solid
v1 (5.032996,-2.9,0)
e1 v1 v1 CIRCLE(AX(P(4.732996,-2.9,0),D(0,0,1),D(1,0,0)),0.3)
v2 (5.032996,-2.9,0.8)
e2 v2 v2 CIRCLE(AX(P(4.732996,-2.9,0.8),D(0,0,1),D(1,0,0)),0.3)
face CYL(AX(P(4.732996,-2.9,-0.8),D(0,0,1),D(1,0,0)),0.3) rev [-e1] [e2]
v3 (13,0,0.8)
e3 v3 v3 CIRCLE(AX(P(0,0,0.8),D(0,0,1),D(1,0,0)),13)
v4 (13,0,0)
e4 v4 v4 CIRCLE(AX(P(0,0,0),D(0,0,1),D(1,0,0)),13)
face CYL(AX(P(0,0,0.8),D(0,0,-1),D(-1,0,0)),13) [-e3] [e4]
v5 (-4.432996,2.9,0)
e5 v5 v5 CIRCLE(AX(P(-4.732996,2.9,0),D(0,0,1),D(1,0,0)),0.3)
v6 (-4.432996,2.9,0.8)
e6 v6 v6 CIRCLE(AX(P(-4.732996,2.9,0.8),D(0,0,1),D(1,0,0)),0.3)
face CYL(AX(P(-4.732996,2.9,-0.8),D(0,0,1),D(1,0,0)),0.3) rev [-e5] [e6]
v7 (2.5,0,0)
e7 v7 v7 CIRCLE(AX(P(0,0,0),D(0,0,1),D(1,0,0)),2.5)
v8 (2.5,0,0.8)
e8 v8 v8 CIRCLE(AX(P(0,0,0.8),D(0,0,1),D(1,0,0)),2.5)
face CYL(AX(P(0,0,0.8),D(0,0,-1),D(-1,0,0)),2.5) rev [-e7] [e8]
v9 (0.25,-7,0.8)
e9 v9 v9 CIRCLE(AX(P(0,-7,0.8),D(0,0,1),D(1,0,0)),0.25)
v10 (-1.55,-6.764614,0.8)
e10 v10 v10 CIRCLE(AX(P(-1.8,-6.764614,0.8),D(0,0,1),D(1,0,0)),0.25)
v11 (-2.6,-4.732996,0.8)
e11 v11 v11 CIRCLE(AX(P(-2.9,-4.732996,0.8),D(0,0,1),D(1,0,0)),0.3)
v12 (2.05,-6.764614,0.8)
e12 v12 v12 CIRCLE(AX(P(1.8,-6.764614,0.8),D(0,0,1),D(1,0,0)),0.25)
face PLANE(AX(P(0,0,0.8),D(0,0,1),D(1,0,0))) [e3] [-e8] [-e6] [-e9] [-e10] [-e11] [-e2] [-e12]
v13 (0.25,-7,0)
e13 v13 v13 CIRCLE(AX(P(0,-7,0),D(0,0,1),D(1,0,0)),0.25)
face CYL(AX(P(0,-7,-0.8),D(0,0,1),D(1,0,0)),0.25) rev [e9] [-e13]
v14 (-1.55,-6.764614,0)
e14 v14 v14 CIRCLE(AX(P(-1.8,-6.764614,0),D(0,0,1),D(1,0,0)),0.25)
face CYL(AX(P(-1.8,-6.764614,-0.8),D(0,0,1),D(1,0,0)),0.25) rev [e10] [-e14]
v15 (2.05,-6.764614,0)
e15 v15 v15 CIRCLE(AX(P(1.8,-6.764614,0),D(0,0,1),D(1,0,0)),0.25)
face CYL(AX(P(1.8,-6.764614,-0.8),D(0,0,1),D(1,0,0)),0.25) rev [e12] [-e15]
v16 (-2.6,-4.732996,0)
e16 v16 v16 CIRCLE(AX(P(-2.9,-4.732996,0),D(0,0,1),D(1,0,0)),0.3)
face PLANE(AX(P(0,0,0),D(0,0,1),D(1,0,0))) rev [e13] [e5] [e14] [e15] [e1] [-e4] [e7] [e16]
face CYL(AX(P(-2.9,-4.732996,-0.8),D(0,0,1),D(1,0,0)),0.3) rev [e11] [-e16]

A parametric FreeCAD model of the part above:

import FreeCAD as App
import Part
import Sketcher
from FreeCAD import Vector
Q = App.Units.Quantity

doc = App.newDocument("Part")
body = doc.addObject("PartDesign::Body", "Body")

sketch1 = body.newObject("Sketcher::SketchObject", "Sketch")
sketch1.AttachmentSupport = (doc.getObject("XY_Plane"), [""])
sketch1.MapMode = "FlatFace"
sketch1.addGeometry(Part.Circle(Vector(0, 0, 0), Vector(0, 0, 1), 13), False)
sketch1.addGeometry(Part.Circle(Vector(0, 0, 0), Vector(0, 0, 1), 2.5), False)
sketch1.addConstraint(Sketcher.Constraint("Coincident", 0, 3, -1, 1))
sketch1.addConstraint(Sketcher.Constraint("Coincident", 1, 3, -1, 1))
sketch1.addConstraint(Sketcher.Constraint("Diameter", 0, Q("26 mm")))
sketch1.addConstraint(Sketcher.Constraint("Diameter", 1, Q("5 mm")))
pad1 = body.newObject("PartDesign::Pad", "Pad")
pad1.Profile = sketch1
pad1.Length = 0.8

sketch2 = body.newObject("Sketcher::SketchObject", "Sketch001")
sketch2.AttachmentSupport = (doc.getObject("XY_Plane"), [""])
sketch2.MapMode = "FlatFace"
sketch2.AttachmentOffset = App.Placement(Vector(0, 0, 0.8), App.Rotation())
sketch2.addGeometry(Part.Circle(Vector(0, -7, 0), Vector(0, 0, 1), 0.25), False)
sketch2.addGeometry(Part.Circle(Vector(-1.8, -6.76, 0), Vector(0, 0, 1), 0.25), False)
sketch2.addGeometry(Part.Circle(Vector(1.8, -6.76, 0), Vector(0, 0, 1), 0.25), False)
sketch2.addGeometry(Part.Circle(Vector(4.73, -2.9, 0), Vector(0, 0, 1), 0.3), False)
sketch2.addGeometry(Part.Circle(Vector(-2.9, -4.73, 0), Vector(0, 0, 1), 0.3), False)
sketch2.addGeometry(Part.Circle(Vector(-4.73, 2.9, 0), Vector(0, 0, 1), 0.3), False)
sketch2.addConstraint(Sketcher.Constraint("Equal", 0, 1))
sketch2.addConstraint(Sketcher.Constraint("Equal", 1, 2))
sketch2.addConstraint(Sketcher.Constraint("Equal", 3, 4))
sketch2.addConstraint(Sketcher.Constraint("Equal", 4, 5))
sketch2.addConstraint(Sketcher.Constraint("Symmetric", 3, 3, 5, 3, -1, 1))
sketch2.addConstraint(Sketcher.Constraint("Symmetric", 1, 3, 2, 3, -2))
sketch2.addConstraint(Sketcher.Constraint("PointOnObject", 0, 3, -2))
sketch2.addConstraint(Sketcher.Constraint("Diameter", 0, Q("0.5 mm")))
sketch2.addConstraint(Sketcher.Constraint("Diameter", 3, Q("0.6 mm")))
sketch2.addConstraint(Sketcher.Constraint("DistanceY", 0, 3, -1, 1, Q("7 mm")))
sketch2.addConstraint(Sketcher.Constraint("DistanceX", 1, 3, -1, 1, Q("1.8 mm")))
sketch2.addConstraint(Sketcher.Constraint("DistanceY", 3, 3, -1, 1, Q("2.9 mm")))
sketch2.addConstraint(Sketcher.Constraint("DistanceX", 4, 3, -1, 1, Q("2.9 mm")))
sketch2.addConstraint(Sketcher.Constraint("DistanceX", 5, 3, 3, 3, Q("9.465992 mm")))
sketch2.addConstraint(Sketcher.Constraint("DistanceY", 1, 3, -1, 1, Q("6.764614 mm")))
sketch2.addConstraint(Sketcher.Constraint("DistanceY", 4, 3, -1, 1, Q("4.732996 mm")))
pocket1 = body.newObject("PartDesign::Pocket", "Pocket")
pocket1.Profile = sketch2
pocket1.Length = 1.6

doc.recompute()
